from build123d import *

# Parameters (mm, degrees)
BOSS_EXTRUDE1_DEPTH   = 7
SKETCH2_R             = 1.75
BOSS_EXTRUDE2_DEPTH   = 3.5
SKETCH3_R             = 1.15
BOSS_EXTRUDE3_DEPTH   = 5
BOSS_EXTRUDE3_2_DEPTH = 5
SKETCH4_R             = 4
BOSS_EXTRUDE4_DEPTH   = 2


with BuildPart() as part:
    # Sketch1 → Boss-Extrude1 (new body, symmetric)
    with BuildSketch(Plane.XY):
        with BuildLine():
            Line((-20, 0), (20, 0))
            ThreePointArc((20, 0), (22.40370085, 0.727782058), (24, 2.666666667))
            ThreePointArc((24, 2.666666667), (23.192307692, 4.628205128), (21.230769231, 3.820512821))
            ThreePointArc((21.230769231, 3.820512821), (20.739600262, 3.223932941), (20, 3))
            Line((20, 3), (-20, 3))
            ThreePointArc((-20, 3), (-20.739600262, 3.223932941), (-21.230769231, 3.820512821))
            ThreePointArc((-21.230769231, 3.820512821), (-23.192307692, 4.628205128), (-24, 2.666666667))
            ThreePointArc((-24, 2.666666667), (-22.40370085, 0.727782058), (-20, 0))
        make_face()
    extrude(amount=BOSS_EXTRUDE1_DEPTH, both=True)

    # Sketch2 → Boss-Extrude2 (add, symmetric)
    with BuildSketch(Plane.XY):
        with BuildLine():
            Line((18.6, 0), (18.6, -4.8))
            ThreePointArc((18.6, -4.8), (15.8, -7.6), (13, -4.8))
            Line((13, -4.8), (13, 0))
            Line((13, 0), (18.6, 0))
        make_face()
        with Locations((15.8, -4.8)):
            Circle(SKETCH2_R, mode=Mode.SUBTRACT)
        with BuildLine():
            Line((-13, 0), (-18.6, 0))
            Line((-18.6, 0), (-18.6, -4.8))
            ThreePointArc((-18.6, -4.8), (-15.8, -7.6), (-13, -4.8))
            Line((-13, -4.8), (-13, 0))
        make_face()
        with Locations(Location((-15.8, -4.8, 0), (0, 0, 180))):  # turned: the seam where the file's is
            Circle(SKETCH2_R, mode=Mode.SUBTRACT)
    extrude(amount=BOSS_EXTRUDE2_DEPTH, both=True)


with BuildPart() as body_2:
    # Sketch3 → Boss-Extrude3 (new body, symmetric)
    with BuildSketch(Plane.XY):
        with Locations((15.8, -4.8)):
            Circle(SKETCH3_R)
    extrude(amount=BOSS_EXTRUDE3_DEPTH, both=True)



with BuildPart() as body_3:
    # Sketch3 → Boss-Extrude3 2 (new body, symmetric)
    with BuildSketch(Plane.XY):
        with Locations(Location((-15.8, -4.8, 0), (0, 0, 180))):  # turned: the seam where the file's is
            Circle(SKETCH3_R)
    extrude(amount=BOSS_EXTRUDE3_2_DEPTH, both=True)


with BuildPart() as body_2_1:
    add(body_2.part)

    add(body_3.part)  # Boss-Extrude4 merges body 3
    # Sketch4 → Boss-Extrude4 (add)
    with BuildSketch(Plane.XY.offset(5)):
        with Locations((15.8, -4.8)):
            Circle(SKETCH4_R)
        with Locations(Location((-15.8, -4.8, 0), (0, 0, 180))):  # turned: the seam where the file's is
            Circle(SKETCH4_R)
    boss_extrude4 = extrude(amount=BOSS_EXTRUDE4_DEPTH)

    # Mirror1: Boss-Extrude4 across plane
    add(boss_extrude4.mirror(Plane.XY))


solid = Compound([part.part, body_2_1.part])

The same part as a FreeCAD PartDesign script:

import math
import FreeCAD as App
import Part
import Sketcher

V = App.Vector

doc = App.newDocument("Part")
body = doc.addObject("PartDesign::Body", "Body")

# Sketch on XY plane
sketch1 = body.newObject("Sketcher::SketchObject", "Sketch")
sketch1.AttachmentSupport = (doc.getObject("XY_Plane"), [""])
sketch1.MapMode = "FlatFace"
sketch1.addGeometry([
    Part.LineSegment(V(-20, 0, 0), V(20, 0, 0)),  # 0
    Part.ArcOfCircle(Part.Circle(V(20, 4.3, 0), V(0, 0, 1), 4.3), math.radians(-90), math.radians(-23)),  # 1
    Part.ArcOfCircle(Part.Circle(V(22.6, 3.2, 0), V(0, 0, 1), 1.5), math.radians(-23), math.radians(157)),  # 2
    Part.ArcOfCircle(Part.Circle(V(20, 4.3, 0), V(0, 0, 1), 1.3), math.radians(-90), math.radians(-23)),  # 3
    Part.LineSegment(V(20, 3, 0), V(-20, 3, 0)),  # 4
    Part.ArcOfCircle(Part.Circle(V(-20, 4.3, 0), V(0, 0, 1), 1.3), math.radians(-157), math.radians(-90)),  # 5
    Part.ArcOfCircle(Part.Circle(V(-22.6, 3.2, 0), V(0, 0, 1), 1.5), math.radians(23), math.radians(203)),  # 6
    Part.ArcOfCircle(Part.Circle(V(-20, 4.3, 0), V(0, 0, 1), 4.3), math.radians(-157), math.radians(-90)),  # 7
], False)
sketch1.addConstraint([
    Sketcher.Constraint("Tangent", 0, 2, 1, 1),
    Sketcher.Constraint("Tangent", 1, 2, 2, 1),
    Sketcher.Constraint("Tangent", 2, 2, 3, 2),
    Sketcher.Constraint("Tangent", 3, 1, 4, 1),
    Sketcher.Constraint("Tangent", 4, 2, 5, 2),
    Sketcher.Constraint("Tangent", 5, 1, 6, 1),
    Sketcher.Constraint("Tangent", 6, 2, 7, 1),
    Sketcher.Constraint("Tangent", 7, 2, 0, 1),
    Sketcher.Constraint("Horizontal", 0),
    Sketcher.Constraint("Horizontal", 4),
    Sketcher.Constraint("Coincident", 3, 3, 1, 3),
    Sketcher.Constraint("Coincident", 7, 3, 5, 3),
    Sketcher.Constraint("Equal", 3, 5),
    Sketcher.Constraint("Symmetric", 0, 2, 7, 2, -1, 1),
    Sketcher.Constraint("Horizontal", 2, 3, 6, 3),
    Sketcher.Constraint("Radius", 2, 1.5),
    Sketcher.Constraint("DistanceX", 0, 1, 0, 2, 40.0),
    Sketcher.Constraint("DistanceX", -1, 1, 1, 2, 24.0),
    Sketcher.Constraint("Radius", 1, 4.333333),
])
pad1 = body.newObject("PartDesign::Pad", "Pad")
pad1.Profile = sketch1
pad1.Length = 14
pad1.Midplane = True

# Sketch on XY plane
sketch2 = body.newObject("Sketcher::SketchObject", "Sketch001")
sketch2.AttachmentSupport = (doc.getObject("XY_Plane"), [""])
sketch2.MapMode = "FlatFace"
sketch2.addGeometry([
    Part.LineSegment(V(18.6, -4.8, 0), V(18.6, 0, 0)),  # 0
    Part.LineSegment(V(18.6, 0, 0), V(13, 0, 0)),  # 1
    Part.LineSegment(V(13, 0, 0), V(13, -4.8, 0)),  # 2
    Part.ArcOfCircle(Part.Circle(V(15.8, -4.8, 0), V(0, 0, 1), 2.8), math.radians(180), math.radians(360)),  # 3
    Part.Circle(V(15.8, -4.8, 0), V(0, 0, 1), 1.8),  # 4
    Part.LineSegment(V(-13, 0, 0), V(-18.6, 0, 0)),  # 5
    Part.LineSegment(V(-18.6, 0, 0), V(-18.6, -4.8, 0)),  # 6
    Part.ArcOfCircle(Part.Circle(V(-15.8, -4.8, 0), V(0, 0, 1), 2.8), math.radians(180), math.radians(360)),  # 7
    Part.LineSegment(V(-13, -4.8, 0), V(-13, 0, 0)),  # 8
    Part.Circle(V(-15.8, -4.8, 0), V(0, 0, 1), 1.8),  # 9
], False)
sketch2.addConstraint([
    Sketcher.Constraint("Coincident", 0, 2, 1, 1),
    Sketcher.Constraint("Coincident", 1, 2, 2, 1),
    Sketcher.Constraint("Tangent", 2, 2, 3, 1),
    Sketcher.Constraint("Tangent", 3, 2, 0, 1),
    Sketcher.Constraint("Coincident", 5, 2, 6, 1),
    Sketcher.Constraint("Tangent", 6, 2, 7, 1),
    Sketcher.Constraint("Tangent", 7, 2, 8, 1),
    Sketcher.Constraint("Coincident", 8, 2, 5, 1),
    Sketcher.Constraint("Vertical", 0),
    Sketcher.Constraint("Horizontal", 1),
    Sketcher.Constraint("Vertical", 2),
    Sketcher.Constraint("Horizontal", 5),
    Sketcher.Constraint("Vertical", 6),
    Sketcher.Constraint("Vertical", 8),
    Sketcher.Constraint("Coincident", 4, 3, 3, 3),
    Sketcher.Constraint("Coincident", 9, 3, 7, 3),
    Sketcher.Constraint("Equal", 3, 7),
    Sketcher.Constraint("Equal", 4, 9),
    Sketcher.Constraint("Symmetric", 0, 2, 5, 2, -1, 1),
    Sketcher.Constraint("PointOnObject", 0, 2, -1),
    Sketcher.Constraint("Horizontal", 4, 3, 7, 3),
    Sketcher.Constraint("Diameter", 4, 3.5),
    Sketcher.Constraint("Radius", 3, 2.8),
    Sketcher.Constraint("DistanceY", 0, 1, 0, 2, 4.8),
    Sketcher.Constraint("DistanceX", -1, 1, 1, 2, 13.0),
])
pad2 = body.newObject("PartDesign::Pad", "Pad001")
pad2.Profile = sketch2
pad2.Length = 7
pad2.Midplane = True
body2 = doc.addObject("PartDesign::Body", "Body001")

# Sketch on XY plane
sketch3 = body2.newObject("Sketcher::SketchObject", "Sketch002")
sketch3.AttachmentSupport = (doc.getObject("XY_Plane001"), [""])
sketch3.MapMode = "FlatFace"
sketch3.addGeometry(Part.Circle(V(15.8, -4.8, 0), V(0, 0, 1), 1.1), False)
sketch3.addConstraint([
    Sketcher.Constraint("Diameter", 0, 2.3),
    Sketcher.Constraint("DistanceX", -1, 1, 0, 3, 15.8),
    Sketcher.Constraint("DistanceY", 0, 3, -1, 1, 4.8),
])
pad3 = body2.newObject("PartDesign::Pad", "Pad002")
pad3.Profile = sketch3
pad3.Length = 10
pad3.Midplane = True
body3 = doc.addObject("PartDesign::Body", "Body002")

# Sketch on XY plane
sketch4 = body3.newObject("Sketcher::SketchObject", "Sketch003")
sketch4.AttachmentSupport = (doc.getObject("XY_Plane002"), [""])
sketch4.MapMode = "FlatFace"
sketch4.addGeometry(Part.Circle(V(-15.8, -4.8, 0), V(0, 0, 1), 1.1), False)
sketch4.addConstraint([
    Sketcher.Constraint("Diameter", 0, 2.3),
    Sketcher.Constraint("DistanceX", 0, 3, -1, 1, 15.8),
    Sketcher.Constraint("DistanceY", 0, 3, -1, 1, 4.8),
])
pad4 = body3.newObject("PartDesign::Pad", "Pad003")
pad4.Profile = sketch4
pad4.Length = 10
pad4.Midplane = True
body2.AllowCompound = True
doc.recompute()

boolean = body2.newObject("PartDesign::Boolean", "Boolean")
boolean.Type = "Fuse"
boolean.addObjects([body3])

# Sketch on XY plane
sketch5 = body2.newObject("Sketcher::SketchObject", "Sketch004")
sketch5.AttachmentSupport = (doc.getObject("XY_Plane001"), [""])
sketch5.MapMode = "FlatFace"
sketch5.AttachmentOffset = App.Placement(V(0, 0, 5), App.Rotation())
sketch5.addGeometry([
    Part.Circle(V(15.8, -4.8, 0), V(0, 0, 1), 4),
    Part.Circle(V(-15.8, -4.8, 0), V(0, 0, 1), 4),
], False)
sketch5.addConstraint([
    Sketcher.Constraint("Equal", 0, 1),
    Sketcher.Constraint("Symmetric", 0, 3, 1, 3, -2),
    Sketcher.Constraint("Diameter", 0, 8.0),
    Sketcher.Constraint("DistanceX", -1, 1, 0, 3, 15.8),
    Sketcher.Constraint("DistanceY", 0, 3, -1, 1, 4.8),
])
pad5 = body2.newObject("PartDesign::Pad", "Pad004")
pad5.Profile = sketch5
pad5.Length = 2
doc.recompute()

mirrored = body2.newObject("PartDesign::Mirrored", "Mirrored")
mirrored.Originals = [pad5]
mirrored.MirrorPlane = (doc.getObject("XY_Plane001"), [""])
body2.Tip = mirrored

doc.recompute()
